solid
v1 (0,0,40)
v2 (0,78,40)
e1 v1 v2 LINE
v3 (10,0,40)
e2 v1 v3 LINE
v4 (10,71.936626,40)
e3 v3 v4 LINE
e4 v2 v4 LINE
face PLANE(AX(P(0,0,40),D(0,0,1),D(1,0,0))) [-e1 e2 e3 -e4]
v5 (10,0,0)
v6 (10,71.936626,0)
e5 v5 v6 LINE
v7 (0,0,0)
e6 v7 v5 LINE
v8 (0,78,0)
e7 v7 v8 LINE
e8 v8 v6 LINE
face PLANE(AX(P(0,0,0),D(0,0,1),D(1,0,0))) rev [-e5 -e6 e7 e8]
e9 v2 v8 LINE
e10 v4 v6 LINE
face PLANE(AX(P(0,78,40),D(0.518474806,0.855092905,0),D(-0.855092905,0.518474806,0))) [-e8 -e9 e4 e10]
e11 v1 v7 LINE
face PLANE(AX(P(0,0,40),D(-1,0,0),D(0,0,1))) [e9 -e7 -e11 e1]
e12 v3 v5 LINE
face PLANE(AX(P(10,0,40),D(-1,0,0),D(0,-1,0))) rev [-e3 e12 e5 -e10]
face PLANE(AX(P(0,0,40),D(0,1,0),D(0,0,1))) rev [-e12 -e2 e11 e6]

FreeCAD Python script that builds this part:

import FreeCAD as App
import Part
import Sketcher

V = App.Vector
Q = App.Units.Quantity

doc = App.newDocument("Part")
body = doc.addObject("PartDesign::Body", "Body")

# Sketch on XY plane
sketch1 = body.newObject("Sketcher::SketchObject", "Sketch")
sketch1.AttachmentSupport = (doc.getObject("XY_Plane"), [""])
sketch1.MapMode = "FlatFace"
sketch1.addGeometry([
    Part.LineSegment(V(0, 78, 0), V(0, 0, 0)),
    Part.LineSegment(V(0, 0, 0), V(10, 0, 0)),
    Part.LineSegment(V(10, 0, 0), V(10, 71.936626, 0)),
    Part.LineSegment(V(10, 71.936626, 0), V(0, 78, 0)),
], False)
sketch1.addConstraint([
    Sketcher.Constraint("Coincident", 0, 2, 1, 1),
    Sketcher.Constraint("Coincident", 1, 2, 2, 1),
    Sketcher.Constraint("Coincident", 2, 2, 3, 1),
    Sketcher.Constraint("Coincident", 3, 2, 0, 1),
    Sketcher.Constraint("Vertical", 0),
    Sketcher.Constraint("Horizontal", 1),
    Sketcher.Constraint("Vertical", 2),
    Sketcher.Constraint("Coincident", 0, 2, -1, 1),
    Sketcher.Constraint("DistanceX", 1, 1, 1, 2, Q("10 mm")),
    Sketcher.Constraint("DistanceY", 0, 2, 0, 1, Q("78 mm")),
    Sketcher.Constraint("Angle", 3, Q("148.77 deg")),
])
pad1 = body.newObject("PartDesign::Pad", "Pad")
pad1.Profile = sketch1
pad1.Length = 40

doc.recompute()
